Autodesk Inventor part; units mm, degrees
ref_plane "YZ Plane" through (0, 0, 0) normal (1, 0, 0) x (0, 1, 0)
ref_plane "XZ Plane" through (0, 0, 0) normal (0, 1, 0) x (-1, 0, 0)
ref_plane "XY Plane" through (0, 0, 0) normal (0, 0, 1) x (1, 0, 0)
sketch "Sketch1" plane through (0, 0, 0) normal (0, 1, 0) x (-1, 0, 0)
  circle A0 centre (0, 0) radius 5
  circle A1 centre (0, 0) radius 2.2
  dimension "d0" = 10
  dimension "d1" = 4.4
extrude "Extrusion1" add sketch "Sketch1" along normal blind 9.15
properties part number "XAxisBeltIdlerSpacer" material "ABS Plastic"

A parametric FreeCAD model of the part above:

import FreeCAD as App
import Part
import Sketcher

V = App.Vector
Q = App.Units.Quantity

doc = App.newDocument("Part")
body = doc.addObject("PartDesign::Body", "Body")

# Sketch on XZ plane
sketch1 = body.newObject("Sketcher::SketchObject", "Sketch")
sketch1.AttachmentSupport = (doc.getObject("XZ_Plane"), [""])
sketch1.MapMode = "FlatFace"
sketch1.addGeometry(Part.Circle(V(0, 0, 0), V(0, 0, 1), 5), False)
sketch1.addGeometry(Part.Circle(V(0, 0, 0), V(0, 0, 1), 2.2), False)
sketch1.addConstraint(Sketcher.Constraint("Coincident", 0, 3, -1, 1))
sketch1.addConstraint(Sketcher.Constraint("Coincident", 1, 3, -1, 1))
sketch1.addConstraint(Sketcher.Constraint("Diameter", 0, Q("10 mm")))
sketch1.addConstraint(Sketcher.Constraint("Diameter", 1, Q("4.4 mm")))
pad1 = body.newObject("PartDesign::Pad", "Pad")
pad1.Profile = sketch1
pad1.Length = 9.15
pad1.Reversed = True

doc.recompute()
